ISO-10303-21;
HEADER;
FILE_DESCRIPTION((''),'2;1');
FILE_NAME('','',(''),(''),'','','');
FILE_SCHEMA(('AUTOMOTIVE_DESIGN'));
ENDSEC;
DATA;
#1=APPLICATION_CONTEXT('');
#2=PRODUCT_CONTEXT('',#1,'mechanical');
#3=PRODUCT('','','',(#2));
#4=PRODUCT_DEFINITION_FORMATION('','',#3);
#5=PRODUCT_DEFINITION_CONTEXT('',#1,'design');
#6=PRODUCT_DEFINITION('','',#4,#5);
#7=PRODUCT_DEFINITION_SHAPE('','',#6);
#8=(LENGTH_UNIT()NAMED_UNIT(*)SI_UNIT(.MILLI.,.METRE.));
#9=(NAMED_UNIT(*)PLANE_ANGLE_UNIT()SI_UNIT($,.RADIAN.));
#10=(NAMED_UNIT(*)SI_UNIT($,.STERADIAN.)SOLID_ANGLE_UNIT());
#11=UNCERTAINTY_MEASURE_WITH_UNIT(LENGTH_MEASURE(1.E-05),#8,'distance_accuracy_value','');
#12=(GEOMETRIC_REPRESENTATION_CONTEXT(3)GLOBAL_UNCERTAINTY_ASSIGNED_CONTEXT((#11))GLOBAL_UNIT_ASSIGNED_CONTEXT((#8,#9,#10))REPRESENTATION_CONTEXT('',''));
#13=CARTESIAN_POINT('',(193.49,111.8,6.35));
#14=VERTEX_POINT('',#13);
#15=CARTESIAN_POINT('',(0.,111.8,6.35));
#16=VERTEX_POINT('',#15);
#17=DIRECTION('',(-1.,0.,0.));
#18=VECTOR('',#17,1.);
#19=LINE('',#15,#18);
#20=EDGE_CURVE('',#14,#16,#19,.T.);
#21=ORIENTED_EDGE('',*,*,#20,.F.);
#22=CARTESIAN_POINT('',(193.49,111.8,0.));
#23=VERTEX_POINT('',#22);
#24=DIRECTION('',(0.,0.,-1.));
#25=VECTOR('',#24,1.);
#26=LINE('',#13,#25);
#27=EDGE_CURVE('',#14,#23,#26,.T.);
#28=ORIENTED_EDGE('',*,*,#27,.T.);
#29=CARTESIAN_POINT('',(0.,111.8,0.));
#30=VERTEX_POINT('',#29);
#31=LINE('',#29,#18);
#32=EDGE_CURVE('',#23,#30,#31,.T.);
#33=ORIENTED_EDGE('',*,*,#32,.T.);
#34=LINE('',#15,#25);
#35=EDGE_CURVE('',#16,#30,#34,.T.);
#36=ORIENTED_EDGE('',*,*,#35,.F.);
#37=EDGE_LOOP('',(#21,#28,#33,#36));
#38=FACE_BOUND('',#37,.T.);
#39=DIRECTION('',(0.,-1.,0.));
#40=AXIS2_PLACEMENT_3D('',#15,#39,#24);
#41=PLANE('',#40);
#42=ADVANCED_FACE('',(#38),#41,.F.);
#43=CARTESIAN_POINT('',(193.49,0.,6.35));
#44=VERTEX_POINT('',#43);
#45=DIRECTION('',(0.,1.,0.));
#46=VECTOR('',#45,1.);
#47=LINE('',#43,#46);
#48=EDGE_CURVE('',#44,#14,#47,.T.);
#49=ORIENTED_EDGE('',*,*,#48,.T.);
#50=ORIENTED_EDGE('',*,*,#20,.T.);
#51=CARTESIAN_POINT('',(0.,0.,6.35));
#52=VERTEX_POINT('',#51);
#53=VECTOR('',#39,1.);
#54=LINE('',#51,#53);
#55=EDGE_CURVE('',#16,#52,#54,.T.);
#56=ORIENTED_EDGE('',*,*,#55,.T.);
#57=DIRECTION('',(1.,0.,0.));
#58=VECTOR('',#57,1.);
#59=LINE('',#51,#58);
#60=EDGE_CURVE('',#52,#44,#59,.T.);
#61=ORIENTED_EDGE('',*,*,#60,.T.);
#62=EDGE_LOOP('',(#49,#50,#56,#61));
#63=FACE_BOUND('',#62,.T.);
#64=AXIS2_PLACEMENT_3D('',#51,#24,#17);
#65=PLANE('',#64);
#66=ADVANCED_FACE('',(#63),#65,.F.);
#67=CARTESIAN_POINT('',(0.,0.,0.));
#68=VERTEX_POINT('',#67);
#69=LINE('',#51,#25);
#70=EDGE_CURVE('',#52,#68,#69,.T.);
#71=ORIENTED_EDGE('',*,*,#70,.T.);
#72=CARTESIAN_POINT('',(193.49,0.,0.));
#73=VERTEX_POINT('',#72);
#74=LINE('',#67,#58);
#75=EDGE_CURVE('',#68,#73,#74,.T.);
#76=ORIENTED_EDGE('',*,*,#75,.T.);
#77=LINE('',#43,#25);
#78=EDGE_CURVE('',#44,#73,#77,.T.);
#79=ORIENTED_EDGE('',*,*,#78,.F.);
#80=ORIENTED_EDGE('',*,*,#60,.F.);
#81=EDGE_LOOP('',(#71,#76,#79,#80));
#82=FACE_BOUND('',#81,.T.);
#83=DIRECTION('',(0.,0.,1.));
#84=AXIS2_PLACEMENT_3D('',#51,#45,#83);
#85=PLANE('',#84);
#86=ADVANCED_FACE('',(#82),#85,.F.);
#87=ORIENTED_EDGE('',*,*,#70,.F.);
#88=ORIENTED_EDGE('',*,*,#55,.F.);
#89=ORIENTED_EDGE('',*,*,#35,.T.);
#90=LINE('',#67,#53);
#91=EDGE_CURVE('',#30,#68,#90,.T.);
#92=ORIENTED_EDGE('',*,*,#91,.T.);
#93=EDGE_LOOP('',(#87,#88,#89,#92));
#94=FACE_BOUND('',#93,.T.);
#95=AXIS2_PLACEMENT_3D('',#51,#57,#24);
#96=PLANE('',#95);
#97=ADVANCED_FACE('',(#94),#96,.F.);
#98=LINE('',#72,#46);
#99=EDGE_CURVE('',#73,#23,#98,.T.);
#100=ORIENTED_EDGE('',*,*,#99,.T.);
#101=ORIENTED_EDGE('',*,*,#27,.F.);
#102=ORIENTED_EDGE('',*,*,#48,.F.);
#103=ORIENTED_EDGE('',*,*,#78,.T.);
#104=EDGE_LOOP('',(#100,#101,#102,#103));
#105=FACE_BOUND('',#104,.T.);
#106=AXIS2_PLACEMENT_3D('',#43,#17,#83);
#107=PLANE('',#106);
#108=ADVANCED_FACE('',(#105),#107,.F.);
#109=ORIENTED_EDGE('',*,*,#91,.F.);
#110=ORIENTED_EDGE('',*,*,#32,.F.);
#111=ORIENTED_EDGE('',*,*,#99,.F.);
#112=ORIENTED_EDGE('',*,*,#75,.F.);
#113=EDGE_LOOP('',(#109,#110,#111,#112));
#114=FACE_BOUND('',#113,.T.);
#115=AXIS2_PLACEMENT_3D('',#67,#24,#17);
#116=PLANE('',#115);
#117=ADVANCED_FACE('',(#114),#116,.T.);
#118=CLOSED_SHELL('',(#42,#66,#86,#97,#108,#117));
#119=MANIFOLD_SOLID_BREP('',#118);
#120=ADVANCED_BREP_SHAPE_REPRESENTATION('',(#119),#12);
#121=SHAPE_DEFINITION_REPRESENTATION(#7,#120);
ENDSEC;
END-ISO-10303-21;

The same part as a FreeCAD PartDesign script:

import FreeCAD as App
import Part
import Sketcher
Q = App.Units.Quantity

doc = App.newDocument("Part")
params = doc.addObject("Spreadsheet::Sheet", "Params")
for row, (alias, value) in enumerate([
    ("sketch1_height", "111.8 mm"),
    ("sketch1_width", "193.49 mm"),
    ("pad1_length", "6.35 mm"),
], start=1):
    params.set(f"A{row}", alias)
    params.set(f"B{row}", "=" + value)
    params.setAlias(f"B{row}", alias)

body = doc.addObject("PartDesign::Body", "Body")

# Sketch on XY plane
sketch1 = body.newObject("Sketcher::SketchObject", "Sketch")
sketch1.AttachmentSupport = (doc.getObject("XY_Plane"), [""])
sketch1.MapMode = "FlatFace"
sketch1.addGeometry(Part.LineSegment(App.Vector(0, 112, 0), App.Vector(0, 0, 0)), False)
sketch1.addGeometry(Part.LineSegment(App.Vector(0, 0, 0), App.Vector(193, 0, 0)), False)
sketch1.addGeometry(Part.LineSegment(App.Vector(193, 0, 0), App.Vector(193, 112, 0)), False)
sketch1.addGeometry(Part.LineSegment(App.Vector(193, 112, 0), App.Vector(0, 112, 0)), False)
sketch1.addConstraint(Sketcher.Constraint("Coincident", 0, 2, 1, 1))
sketch1.addConstraint(Sketcher.Constraint("Coincident", 1, 2, 2, 1))
sketch1.addConstraint(Sketcher.Constraint("Coincident", 2, 2, 3, 1))
sketch1.addConstraint(Sketcher.Constraint("Coincident", 3, 2, 0, 1))
sketch1.addConstraint(Sketcher.Constraint("Vertical", 0))
sketch1.addConstraint(Sketcher.Constraint("Horizontal", 1))
sketch1.addConstraint(Sketcher.Constraint("Vertical", 2))
sketch1.addConstraint(Sketcher.Constraint("Horizontal", 3))
sketch1.addConstraint(Sketcher.Constraint("Coincident", 0, 2, -1, 1))
sketch1.addConstraint(Sketcher.Constraint("DistanceY", 0, 2, 0, 1, Q("111.8 mm")))
sketch1.addConstraint(Sketcher.Constraint("DistanceX", 1, 1, 1, 2, Q("193.49 mm")))
sketch1.setExpression("Constraints[9]", "Params.sketch1_height")
sketch1.setExpression("Constraints[10]", "Params.sketch1_width")
pad1 = body.newObject("PartDesign::Pad", "Pad")
pad1.Profile = sketch1
pad1.setExpression("Length", "Params.pad1_length")

doc.recompute()
